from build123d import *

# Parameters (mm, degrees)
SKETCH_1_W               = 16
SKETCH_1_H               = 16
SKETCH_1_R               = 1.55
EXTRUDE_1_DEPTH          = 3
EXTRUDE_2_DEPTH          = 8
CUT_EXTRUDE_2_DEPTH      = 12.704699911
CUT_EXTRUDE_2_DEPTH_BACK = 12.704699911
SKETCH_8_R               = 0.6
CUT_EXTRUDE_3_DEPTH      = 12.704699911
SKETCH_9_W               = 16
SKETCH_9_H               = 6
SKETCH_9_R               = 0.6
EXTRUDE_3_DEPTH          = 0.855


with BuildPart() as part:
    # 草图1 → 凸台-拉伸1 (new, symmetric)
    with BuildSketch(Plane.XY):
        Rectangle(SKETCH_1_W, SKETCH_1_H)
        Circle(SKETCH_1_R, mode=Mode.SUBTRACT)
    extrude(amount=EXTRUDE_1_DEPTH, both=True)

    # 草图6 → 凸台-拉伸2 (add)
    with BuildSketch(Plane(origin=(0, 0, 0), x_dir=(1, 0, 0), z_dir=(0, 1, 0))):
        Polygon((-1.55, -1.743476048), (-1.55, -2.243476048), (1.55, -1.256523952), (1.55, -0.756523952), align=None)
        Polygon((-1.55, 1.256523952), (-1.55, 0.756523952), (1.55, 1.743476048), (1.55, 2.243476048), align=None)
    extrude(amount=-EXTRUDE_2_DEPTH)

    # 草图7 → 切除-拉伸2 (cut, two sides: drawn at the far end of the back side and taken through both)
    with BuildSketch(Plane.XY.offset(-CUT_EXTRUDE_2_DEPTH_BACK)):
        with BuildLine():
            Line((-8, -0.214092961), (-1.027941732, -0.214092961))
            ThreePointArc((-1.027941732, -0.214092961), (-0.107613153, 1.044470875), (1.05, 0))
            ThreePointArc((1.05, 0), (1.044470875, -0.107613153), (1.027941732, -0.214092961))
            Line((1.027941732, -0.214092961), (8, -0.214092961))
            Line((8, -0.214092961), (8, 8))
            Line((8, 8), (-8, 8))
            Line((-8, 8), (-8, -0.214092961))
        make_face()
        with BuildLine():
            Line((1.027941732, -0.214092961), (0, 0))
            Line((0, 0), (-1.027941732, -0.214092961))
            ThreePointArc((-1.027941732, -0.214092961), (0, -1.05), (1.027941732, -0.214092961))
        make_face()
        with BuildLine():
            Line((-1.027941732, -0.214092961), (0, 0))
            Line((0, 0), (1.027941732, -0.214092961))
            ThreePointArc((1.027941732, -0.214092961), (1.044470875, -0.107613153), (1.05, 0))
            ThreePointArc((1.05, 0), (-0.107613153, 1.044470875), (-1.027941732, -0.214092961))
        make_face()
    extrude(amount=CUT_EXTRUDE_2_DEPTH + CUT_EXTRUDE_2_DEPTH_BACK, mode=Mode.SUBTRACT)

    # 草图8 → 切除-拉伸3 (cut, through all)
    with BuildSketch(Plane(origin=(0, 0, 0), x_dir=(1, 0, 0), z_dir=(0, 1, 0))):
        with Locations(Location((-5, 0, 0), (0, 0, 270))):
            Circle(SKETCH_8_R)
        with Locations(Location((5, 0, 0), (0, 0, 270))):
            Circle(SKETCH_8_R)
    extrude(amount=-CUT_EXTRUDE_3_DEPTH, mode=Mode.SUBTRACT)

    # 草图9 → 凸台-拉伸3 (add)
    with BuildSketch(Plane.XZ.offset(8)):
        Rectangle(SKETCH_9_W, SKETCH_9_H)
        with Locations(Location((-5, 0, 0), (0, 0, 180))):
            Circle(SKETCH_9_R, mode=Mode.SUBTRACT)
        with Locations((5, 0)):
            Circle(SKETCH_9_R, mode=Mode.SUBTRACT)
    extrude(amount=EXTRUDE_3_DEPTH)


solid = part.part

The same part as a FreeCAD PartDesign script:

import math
import FreeCAD as App
import Part
import Sketcher
Q = App.Units.Quantity


def add_polygon(sketch, points):
    """Adds a closed chain of lines whose ends are joined by coincident constraints."""
    first, n = sketch.GeometryCount, len(points)
    for a, b in zip(points, points[1:] + points[:1]):
        sketch.addGeometry(Part.LineSegment(App.Vector(*a, 0), App.Vector(*b, 0)), False)
    for i in range(n):
        sketch.addConstraint(Sketcher.Constraint("Coincident", first + i, 2, first + (i + 1) % n, 1))

doc = App.newDocument("Part")
params = doc.addObject("Spreadsheet::Sheet", "Params")
for row, (alias, value) in enumerate([
    ("sketch1_diameter", "3.1 mm"),
    ("sketch1_width", "16 mm"),
    ("pad1_length", "6 mm"),
    ("sketch2_height", "0.5 mm"),
    ("pad2_length", "8 mm"),
    ("sketch3_width", "16 mm"),
    ("sketch3_radius", "1.05 mm"),
    ("sketch4_diameter", "1.2 mm"),
    ("sketch5_diameter", "1.2 mm"),
    ("sketch5_width", "16 mm"),
    ("sketch5_height", "6 mm"),
    ("pad3_length", "0.855 mm"),
], start=1):
    params.set(f"A{row}", alias)
    params.set(f"B{row}", "=" + value)
    params.setAlias(f"B{row}", alias)

body = doc.addObject("PartDesign::Body", "Body")

sketch1 = body.newObject("Sketcher::SketchObject", "Sketch")
sketch1.AttachmentSupport = (doc.getObject("XY_Plane"), [""])
sketch1.MapMode = "FlatFace"
add_polygon(sketch1, [(-8, 8), (-8, -8), (8, -8), (8, 8)])
sketch1.addGeometry(Part.Circle(App.Vector(0, 0, 0), App.Vector(0, 0, 1), 1.6), False)
sketch1.addConstraint([
    Sketcher.Constraint("Vertical", 0),
    Sketcher.Constraint("Horizontal", 1),
    Sketcher.Constraint("Vertical", 2),
    Sketcher.Constraint("Horizontal", 3),
    Sketcher.Constraint("Coincident", 4, 3, -1, 1),
    Sketcher.Constraint("Symmetric", 0, 2, 2, 2, -1, 1),
    Sketcher.Constraint("Equal", 3, 0),
    Sketcher.Constraint("Diameter", 4, Q("3.1 mm")),
    Sketcher.Constraint("DistanceX", 1, 1, 1, 2, Q("16 mm")),
])
sketch1.setExpression("Constraints[11]", "Params.sketch1_diameter")
sketch1.setExpression("Constraints[12]", "Params.sketch1_width")
pad1 = body.newObject("PartDesign::Pad", "Pad")
pad1.Profile = sketch1
pad1.setExpression("Length", "Params.pad1_length")
pad1.Midplane = True

sketch2 = body.newObject("Sketcher::SketchObject", "Sketch001")
sketch2.AttachmentSupport = (doc.getObject("XZ_Plane"), [""])
sketch2.MapMode = "FlatFace"
add_polygon(sketch2, [(-1.55, 1.74), (-1.55, 2.24), (1.55, 1.26), (1.55, 0.76)])
add_polygon(sketch2, [(-1.55, -1.26), (-1.55, -0.76), (1.55, -1.74), (1.55, -2.24)])
sketch2.addConstraint([
    Sketcher.Constraint("Vertical", 0),
    Sketcher.Constraint("Vertical", 2),
    Sketcher.Constraint("Vertical", 4),
    Sketcher.Constraint("Vertical", 6),
    Sketcher.Constraint("Symmetric", 2, 2, 4, 2, -1, 1),
    Sketcher.Constraint("Symmetric", 3, 2, 5, 2, -1, 1),
    Sketcher.Constraint("Parallel", 1, 3),
    Sketcher.Constraint("Parallel", 5, 7),
    Sketcher.Constraint("Vertical", 3, 2, 4, 2),
    Sketcher.Constraint("Equal", 2, 4),
    Sketcher.Constraint("DistanceY", 0, 1, 0, 2, Q("0.5 mm")),
    Sketcher.Constraint("DistanceY", 4, 2, 0, 2, Q("3 mm")),
    Sketcher.Constraint("Angle", 1, Q("-17.66 deg")),
    Sketcher.Constraint("DistanceX", 0, 2, 1, 2, Q("3.1 mm")),
])
sketch2.setExpression("Constraints[18]", "Params.sketch2_height")
pad2 = body.newObject("PartDesign::Pad", "Pad001")
pad2.Profile = sketch2
pad2.setExpression("Length", "Params.pad2_length")

sketch3 = body.newObject("Sketcher::SketchObject", "Sketch002")
sketch3.AttachmentSupport = (doc.getObject("XY_Plane"), [""])
sketch3.MapMode = "FlatFace"
sketch3.addGeometry([
    Part.LineSegment(App.Vector(8, 8, 0), App.Vector(-8, 8, 0)),
    Part.LineSegment(App.Vector(-8, 8, 0), App.Vector(-8, -0.2, 0)),
    Part.LineSegment(App.Vector(-8, -0.2, 0), App.Vector(-1, -0.2, 0)),
    Part.ArcOfCircle(Part.Circle(App.Vector(0, 0, 0), App.Vector(0, 0, 1), 1.1), math.radians(-168), math.radians(-12)),
    Part.LineSegment(App.Vector(1, -0.2, 0), App.Vector(8, -0.2, 0)),
    Part.LineSegment(App.Vector(8, -0.2, 0), App.Vector(8, 8, 0)),
], False)
sketch3.addConstraint([
    Sketcher.Constraint("Coincident", 0, 2, 1, 1),
    Sketcher.Constraint("Coincident", 1, 2, 2, 1),
    Sketcher.Constraint("Coincident", 2, 2, 3, 1),
    Sketcher.Constraint("Coincident", 3, 2, 4, 1),
    Sketcher.Constraint("Coincident", 4, 2, 5, 1),
    Sketcher.Constraint("Coincident", 5, 2, 0, 1),
    Sketcher.Constraint("Horizontal", 0),
    Sketcher.Constraint("Vertical", 1),
    Sketcher.Constraint("Horizontal", 2),
    Sketcher.Constraint("Horizontal", 4),
    Sketcher.Constraint("Vertical", 5),
    Sketcher.Constraint("Coincident", 3, 3, -1, 1),
    Sketcher.Constraint("Symmetric", 1, 2, 4, 2, -2),
    Sketcher.Constraint("DistanceX", 0, 2, 0, 1, Q("16 mm")),
    Sketcher.Constraint("Radius", 3, Q("1.05 mm")),
    Sketcher.Constraint("DistanceY", -1, 1, 0, 2, Q("8 mm")),
    Sketcher.Constraint("DistanceX", 2, 1, 2, 2, Q("6.972058 mm")),
])
sketch3.setExpression("Constraints[13]", "Params.sketch3_width")
sketch3.setExpression("Constraints[14]", "Params.sketch3_radius")
pocket1 = body.newObject("PartDesign::Pocket", "Pocket")
pocket1.Profile = sketch3
pocket1.Type = "ThroughAll"
pocket1.Midplane = True

sketch4 = body.newObject("Sketcher::SketchObject", "Sketch003")
sketch4.AttachmentSupport = (doc.getObject("XZ_Plane"), [""])
sketch4.MapMode = "FlatFace"
sketch4.addGeometry([
    Part.Circle(App.Vector(-5, 0, 0), App.Vector(0, 0, 1), 0.6),
    Part.Circle(App.Vector(5, 0, 0), App.Vector(0, 0, 1), 0.6),
], False)
sketch4.addConstraint([
    Sketcher.Constraint("Equal", 0, 1),
    Sketcher.Constraint("Symmetric", 0, 3, 1, 3, -1, 1),
    Sketcher.Constraint("PointOnObject", 0, 3, -1),
    Sketcher.Constraint("Diameter", 0, Q("1.2 mm")),
    Sketcher.Constraint("DistanceX", 0, 3, -1, 1, Q("5 mm")),
])
sketch4.setExpression("Constraints[3]", "Params.sketch4_diameter")
pocket2 = body.newObject("PartDesign::Pocket", "Pocket001")
pocket2.Profile = sketch4
pocket2.Type = "ThroughAll"
pocket2.Reversed = True

sketch5 = body.newObject("Sketcher::SketchObject", "Sketch004")
sketch5.AttachmentSupport = (doc.getObject("XZ_Plane"), [""])
sketch5.MapMode = "FlatFace"
sketch5.AttachmentOffset = App.Placement(App.Vector(0, 0, 8), App.Rotation())
add_polygon(sketch5, [(-8, 3), (-8, -3), (8, -3), (8, 3)])
sketch5.addGeometry(Part.Circle(App.Vector(-5, 0, 0), App.Vector(0, 0, 1), 0.6), False)
sketch5.addGeometry(Part.Circle(App.Vector(5, 0, 0), App.Vector(0, 0, 1), 0.6), False)
sketch5.addConstraint([
    Sketcher.Constraint("Vertical", 0),
    Sketcher.Constraint("Horizontal", 1),
    Sketcher.Constraint("Vertical", 2),
    Sketcher.Constraint("Horizontal", 3),
    Sketcher.Constraint("Equal", 4, 5),
    Sketcher.Constraint("Symmetric", 4, 3, 5, 3, -1, 1),
    Sketcher.Constraint("Symmetric", 0, 2, 2, 2, -1, 1),
    Sketcher.Constraint("PointOnObject", 4, 3, -1),
    Sketcher.Constraint("Diameter", 4, Q("1.2 mm")),
    Sketcher.Constraint("DistanceX", 1, 1, 1, 2, Q("16 mm")),
    Sketcher.Constraint("DistanceY", 0, 2, 0, 1, Q("6 mm")),
    Sketcher.Constraint("DistanceX", 4, 3, -1, 1, Q("5 mm")),
])
sketch5.setExpression("Constraints[12]", "Params.sketch5_diameter")
sketch5.setExpression("Constraints[13]", "Params.sketch5_width")
sketch5.setExpression("Constraints[14]", "Params.sketch5_height")
pad3 = body.newObject("PartDesign::Pad", "Pad002")
pad3.Profile = sketch5
pad3.setExpression("Length", "Params.pad3_length")

doc.recompute()
